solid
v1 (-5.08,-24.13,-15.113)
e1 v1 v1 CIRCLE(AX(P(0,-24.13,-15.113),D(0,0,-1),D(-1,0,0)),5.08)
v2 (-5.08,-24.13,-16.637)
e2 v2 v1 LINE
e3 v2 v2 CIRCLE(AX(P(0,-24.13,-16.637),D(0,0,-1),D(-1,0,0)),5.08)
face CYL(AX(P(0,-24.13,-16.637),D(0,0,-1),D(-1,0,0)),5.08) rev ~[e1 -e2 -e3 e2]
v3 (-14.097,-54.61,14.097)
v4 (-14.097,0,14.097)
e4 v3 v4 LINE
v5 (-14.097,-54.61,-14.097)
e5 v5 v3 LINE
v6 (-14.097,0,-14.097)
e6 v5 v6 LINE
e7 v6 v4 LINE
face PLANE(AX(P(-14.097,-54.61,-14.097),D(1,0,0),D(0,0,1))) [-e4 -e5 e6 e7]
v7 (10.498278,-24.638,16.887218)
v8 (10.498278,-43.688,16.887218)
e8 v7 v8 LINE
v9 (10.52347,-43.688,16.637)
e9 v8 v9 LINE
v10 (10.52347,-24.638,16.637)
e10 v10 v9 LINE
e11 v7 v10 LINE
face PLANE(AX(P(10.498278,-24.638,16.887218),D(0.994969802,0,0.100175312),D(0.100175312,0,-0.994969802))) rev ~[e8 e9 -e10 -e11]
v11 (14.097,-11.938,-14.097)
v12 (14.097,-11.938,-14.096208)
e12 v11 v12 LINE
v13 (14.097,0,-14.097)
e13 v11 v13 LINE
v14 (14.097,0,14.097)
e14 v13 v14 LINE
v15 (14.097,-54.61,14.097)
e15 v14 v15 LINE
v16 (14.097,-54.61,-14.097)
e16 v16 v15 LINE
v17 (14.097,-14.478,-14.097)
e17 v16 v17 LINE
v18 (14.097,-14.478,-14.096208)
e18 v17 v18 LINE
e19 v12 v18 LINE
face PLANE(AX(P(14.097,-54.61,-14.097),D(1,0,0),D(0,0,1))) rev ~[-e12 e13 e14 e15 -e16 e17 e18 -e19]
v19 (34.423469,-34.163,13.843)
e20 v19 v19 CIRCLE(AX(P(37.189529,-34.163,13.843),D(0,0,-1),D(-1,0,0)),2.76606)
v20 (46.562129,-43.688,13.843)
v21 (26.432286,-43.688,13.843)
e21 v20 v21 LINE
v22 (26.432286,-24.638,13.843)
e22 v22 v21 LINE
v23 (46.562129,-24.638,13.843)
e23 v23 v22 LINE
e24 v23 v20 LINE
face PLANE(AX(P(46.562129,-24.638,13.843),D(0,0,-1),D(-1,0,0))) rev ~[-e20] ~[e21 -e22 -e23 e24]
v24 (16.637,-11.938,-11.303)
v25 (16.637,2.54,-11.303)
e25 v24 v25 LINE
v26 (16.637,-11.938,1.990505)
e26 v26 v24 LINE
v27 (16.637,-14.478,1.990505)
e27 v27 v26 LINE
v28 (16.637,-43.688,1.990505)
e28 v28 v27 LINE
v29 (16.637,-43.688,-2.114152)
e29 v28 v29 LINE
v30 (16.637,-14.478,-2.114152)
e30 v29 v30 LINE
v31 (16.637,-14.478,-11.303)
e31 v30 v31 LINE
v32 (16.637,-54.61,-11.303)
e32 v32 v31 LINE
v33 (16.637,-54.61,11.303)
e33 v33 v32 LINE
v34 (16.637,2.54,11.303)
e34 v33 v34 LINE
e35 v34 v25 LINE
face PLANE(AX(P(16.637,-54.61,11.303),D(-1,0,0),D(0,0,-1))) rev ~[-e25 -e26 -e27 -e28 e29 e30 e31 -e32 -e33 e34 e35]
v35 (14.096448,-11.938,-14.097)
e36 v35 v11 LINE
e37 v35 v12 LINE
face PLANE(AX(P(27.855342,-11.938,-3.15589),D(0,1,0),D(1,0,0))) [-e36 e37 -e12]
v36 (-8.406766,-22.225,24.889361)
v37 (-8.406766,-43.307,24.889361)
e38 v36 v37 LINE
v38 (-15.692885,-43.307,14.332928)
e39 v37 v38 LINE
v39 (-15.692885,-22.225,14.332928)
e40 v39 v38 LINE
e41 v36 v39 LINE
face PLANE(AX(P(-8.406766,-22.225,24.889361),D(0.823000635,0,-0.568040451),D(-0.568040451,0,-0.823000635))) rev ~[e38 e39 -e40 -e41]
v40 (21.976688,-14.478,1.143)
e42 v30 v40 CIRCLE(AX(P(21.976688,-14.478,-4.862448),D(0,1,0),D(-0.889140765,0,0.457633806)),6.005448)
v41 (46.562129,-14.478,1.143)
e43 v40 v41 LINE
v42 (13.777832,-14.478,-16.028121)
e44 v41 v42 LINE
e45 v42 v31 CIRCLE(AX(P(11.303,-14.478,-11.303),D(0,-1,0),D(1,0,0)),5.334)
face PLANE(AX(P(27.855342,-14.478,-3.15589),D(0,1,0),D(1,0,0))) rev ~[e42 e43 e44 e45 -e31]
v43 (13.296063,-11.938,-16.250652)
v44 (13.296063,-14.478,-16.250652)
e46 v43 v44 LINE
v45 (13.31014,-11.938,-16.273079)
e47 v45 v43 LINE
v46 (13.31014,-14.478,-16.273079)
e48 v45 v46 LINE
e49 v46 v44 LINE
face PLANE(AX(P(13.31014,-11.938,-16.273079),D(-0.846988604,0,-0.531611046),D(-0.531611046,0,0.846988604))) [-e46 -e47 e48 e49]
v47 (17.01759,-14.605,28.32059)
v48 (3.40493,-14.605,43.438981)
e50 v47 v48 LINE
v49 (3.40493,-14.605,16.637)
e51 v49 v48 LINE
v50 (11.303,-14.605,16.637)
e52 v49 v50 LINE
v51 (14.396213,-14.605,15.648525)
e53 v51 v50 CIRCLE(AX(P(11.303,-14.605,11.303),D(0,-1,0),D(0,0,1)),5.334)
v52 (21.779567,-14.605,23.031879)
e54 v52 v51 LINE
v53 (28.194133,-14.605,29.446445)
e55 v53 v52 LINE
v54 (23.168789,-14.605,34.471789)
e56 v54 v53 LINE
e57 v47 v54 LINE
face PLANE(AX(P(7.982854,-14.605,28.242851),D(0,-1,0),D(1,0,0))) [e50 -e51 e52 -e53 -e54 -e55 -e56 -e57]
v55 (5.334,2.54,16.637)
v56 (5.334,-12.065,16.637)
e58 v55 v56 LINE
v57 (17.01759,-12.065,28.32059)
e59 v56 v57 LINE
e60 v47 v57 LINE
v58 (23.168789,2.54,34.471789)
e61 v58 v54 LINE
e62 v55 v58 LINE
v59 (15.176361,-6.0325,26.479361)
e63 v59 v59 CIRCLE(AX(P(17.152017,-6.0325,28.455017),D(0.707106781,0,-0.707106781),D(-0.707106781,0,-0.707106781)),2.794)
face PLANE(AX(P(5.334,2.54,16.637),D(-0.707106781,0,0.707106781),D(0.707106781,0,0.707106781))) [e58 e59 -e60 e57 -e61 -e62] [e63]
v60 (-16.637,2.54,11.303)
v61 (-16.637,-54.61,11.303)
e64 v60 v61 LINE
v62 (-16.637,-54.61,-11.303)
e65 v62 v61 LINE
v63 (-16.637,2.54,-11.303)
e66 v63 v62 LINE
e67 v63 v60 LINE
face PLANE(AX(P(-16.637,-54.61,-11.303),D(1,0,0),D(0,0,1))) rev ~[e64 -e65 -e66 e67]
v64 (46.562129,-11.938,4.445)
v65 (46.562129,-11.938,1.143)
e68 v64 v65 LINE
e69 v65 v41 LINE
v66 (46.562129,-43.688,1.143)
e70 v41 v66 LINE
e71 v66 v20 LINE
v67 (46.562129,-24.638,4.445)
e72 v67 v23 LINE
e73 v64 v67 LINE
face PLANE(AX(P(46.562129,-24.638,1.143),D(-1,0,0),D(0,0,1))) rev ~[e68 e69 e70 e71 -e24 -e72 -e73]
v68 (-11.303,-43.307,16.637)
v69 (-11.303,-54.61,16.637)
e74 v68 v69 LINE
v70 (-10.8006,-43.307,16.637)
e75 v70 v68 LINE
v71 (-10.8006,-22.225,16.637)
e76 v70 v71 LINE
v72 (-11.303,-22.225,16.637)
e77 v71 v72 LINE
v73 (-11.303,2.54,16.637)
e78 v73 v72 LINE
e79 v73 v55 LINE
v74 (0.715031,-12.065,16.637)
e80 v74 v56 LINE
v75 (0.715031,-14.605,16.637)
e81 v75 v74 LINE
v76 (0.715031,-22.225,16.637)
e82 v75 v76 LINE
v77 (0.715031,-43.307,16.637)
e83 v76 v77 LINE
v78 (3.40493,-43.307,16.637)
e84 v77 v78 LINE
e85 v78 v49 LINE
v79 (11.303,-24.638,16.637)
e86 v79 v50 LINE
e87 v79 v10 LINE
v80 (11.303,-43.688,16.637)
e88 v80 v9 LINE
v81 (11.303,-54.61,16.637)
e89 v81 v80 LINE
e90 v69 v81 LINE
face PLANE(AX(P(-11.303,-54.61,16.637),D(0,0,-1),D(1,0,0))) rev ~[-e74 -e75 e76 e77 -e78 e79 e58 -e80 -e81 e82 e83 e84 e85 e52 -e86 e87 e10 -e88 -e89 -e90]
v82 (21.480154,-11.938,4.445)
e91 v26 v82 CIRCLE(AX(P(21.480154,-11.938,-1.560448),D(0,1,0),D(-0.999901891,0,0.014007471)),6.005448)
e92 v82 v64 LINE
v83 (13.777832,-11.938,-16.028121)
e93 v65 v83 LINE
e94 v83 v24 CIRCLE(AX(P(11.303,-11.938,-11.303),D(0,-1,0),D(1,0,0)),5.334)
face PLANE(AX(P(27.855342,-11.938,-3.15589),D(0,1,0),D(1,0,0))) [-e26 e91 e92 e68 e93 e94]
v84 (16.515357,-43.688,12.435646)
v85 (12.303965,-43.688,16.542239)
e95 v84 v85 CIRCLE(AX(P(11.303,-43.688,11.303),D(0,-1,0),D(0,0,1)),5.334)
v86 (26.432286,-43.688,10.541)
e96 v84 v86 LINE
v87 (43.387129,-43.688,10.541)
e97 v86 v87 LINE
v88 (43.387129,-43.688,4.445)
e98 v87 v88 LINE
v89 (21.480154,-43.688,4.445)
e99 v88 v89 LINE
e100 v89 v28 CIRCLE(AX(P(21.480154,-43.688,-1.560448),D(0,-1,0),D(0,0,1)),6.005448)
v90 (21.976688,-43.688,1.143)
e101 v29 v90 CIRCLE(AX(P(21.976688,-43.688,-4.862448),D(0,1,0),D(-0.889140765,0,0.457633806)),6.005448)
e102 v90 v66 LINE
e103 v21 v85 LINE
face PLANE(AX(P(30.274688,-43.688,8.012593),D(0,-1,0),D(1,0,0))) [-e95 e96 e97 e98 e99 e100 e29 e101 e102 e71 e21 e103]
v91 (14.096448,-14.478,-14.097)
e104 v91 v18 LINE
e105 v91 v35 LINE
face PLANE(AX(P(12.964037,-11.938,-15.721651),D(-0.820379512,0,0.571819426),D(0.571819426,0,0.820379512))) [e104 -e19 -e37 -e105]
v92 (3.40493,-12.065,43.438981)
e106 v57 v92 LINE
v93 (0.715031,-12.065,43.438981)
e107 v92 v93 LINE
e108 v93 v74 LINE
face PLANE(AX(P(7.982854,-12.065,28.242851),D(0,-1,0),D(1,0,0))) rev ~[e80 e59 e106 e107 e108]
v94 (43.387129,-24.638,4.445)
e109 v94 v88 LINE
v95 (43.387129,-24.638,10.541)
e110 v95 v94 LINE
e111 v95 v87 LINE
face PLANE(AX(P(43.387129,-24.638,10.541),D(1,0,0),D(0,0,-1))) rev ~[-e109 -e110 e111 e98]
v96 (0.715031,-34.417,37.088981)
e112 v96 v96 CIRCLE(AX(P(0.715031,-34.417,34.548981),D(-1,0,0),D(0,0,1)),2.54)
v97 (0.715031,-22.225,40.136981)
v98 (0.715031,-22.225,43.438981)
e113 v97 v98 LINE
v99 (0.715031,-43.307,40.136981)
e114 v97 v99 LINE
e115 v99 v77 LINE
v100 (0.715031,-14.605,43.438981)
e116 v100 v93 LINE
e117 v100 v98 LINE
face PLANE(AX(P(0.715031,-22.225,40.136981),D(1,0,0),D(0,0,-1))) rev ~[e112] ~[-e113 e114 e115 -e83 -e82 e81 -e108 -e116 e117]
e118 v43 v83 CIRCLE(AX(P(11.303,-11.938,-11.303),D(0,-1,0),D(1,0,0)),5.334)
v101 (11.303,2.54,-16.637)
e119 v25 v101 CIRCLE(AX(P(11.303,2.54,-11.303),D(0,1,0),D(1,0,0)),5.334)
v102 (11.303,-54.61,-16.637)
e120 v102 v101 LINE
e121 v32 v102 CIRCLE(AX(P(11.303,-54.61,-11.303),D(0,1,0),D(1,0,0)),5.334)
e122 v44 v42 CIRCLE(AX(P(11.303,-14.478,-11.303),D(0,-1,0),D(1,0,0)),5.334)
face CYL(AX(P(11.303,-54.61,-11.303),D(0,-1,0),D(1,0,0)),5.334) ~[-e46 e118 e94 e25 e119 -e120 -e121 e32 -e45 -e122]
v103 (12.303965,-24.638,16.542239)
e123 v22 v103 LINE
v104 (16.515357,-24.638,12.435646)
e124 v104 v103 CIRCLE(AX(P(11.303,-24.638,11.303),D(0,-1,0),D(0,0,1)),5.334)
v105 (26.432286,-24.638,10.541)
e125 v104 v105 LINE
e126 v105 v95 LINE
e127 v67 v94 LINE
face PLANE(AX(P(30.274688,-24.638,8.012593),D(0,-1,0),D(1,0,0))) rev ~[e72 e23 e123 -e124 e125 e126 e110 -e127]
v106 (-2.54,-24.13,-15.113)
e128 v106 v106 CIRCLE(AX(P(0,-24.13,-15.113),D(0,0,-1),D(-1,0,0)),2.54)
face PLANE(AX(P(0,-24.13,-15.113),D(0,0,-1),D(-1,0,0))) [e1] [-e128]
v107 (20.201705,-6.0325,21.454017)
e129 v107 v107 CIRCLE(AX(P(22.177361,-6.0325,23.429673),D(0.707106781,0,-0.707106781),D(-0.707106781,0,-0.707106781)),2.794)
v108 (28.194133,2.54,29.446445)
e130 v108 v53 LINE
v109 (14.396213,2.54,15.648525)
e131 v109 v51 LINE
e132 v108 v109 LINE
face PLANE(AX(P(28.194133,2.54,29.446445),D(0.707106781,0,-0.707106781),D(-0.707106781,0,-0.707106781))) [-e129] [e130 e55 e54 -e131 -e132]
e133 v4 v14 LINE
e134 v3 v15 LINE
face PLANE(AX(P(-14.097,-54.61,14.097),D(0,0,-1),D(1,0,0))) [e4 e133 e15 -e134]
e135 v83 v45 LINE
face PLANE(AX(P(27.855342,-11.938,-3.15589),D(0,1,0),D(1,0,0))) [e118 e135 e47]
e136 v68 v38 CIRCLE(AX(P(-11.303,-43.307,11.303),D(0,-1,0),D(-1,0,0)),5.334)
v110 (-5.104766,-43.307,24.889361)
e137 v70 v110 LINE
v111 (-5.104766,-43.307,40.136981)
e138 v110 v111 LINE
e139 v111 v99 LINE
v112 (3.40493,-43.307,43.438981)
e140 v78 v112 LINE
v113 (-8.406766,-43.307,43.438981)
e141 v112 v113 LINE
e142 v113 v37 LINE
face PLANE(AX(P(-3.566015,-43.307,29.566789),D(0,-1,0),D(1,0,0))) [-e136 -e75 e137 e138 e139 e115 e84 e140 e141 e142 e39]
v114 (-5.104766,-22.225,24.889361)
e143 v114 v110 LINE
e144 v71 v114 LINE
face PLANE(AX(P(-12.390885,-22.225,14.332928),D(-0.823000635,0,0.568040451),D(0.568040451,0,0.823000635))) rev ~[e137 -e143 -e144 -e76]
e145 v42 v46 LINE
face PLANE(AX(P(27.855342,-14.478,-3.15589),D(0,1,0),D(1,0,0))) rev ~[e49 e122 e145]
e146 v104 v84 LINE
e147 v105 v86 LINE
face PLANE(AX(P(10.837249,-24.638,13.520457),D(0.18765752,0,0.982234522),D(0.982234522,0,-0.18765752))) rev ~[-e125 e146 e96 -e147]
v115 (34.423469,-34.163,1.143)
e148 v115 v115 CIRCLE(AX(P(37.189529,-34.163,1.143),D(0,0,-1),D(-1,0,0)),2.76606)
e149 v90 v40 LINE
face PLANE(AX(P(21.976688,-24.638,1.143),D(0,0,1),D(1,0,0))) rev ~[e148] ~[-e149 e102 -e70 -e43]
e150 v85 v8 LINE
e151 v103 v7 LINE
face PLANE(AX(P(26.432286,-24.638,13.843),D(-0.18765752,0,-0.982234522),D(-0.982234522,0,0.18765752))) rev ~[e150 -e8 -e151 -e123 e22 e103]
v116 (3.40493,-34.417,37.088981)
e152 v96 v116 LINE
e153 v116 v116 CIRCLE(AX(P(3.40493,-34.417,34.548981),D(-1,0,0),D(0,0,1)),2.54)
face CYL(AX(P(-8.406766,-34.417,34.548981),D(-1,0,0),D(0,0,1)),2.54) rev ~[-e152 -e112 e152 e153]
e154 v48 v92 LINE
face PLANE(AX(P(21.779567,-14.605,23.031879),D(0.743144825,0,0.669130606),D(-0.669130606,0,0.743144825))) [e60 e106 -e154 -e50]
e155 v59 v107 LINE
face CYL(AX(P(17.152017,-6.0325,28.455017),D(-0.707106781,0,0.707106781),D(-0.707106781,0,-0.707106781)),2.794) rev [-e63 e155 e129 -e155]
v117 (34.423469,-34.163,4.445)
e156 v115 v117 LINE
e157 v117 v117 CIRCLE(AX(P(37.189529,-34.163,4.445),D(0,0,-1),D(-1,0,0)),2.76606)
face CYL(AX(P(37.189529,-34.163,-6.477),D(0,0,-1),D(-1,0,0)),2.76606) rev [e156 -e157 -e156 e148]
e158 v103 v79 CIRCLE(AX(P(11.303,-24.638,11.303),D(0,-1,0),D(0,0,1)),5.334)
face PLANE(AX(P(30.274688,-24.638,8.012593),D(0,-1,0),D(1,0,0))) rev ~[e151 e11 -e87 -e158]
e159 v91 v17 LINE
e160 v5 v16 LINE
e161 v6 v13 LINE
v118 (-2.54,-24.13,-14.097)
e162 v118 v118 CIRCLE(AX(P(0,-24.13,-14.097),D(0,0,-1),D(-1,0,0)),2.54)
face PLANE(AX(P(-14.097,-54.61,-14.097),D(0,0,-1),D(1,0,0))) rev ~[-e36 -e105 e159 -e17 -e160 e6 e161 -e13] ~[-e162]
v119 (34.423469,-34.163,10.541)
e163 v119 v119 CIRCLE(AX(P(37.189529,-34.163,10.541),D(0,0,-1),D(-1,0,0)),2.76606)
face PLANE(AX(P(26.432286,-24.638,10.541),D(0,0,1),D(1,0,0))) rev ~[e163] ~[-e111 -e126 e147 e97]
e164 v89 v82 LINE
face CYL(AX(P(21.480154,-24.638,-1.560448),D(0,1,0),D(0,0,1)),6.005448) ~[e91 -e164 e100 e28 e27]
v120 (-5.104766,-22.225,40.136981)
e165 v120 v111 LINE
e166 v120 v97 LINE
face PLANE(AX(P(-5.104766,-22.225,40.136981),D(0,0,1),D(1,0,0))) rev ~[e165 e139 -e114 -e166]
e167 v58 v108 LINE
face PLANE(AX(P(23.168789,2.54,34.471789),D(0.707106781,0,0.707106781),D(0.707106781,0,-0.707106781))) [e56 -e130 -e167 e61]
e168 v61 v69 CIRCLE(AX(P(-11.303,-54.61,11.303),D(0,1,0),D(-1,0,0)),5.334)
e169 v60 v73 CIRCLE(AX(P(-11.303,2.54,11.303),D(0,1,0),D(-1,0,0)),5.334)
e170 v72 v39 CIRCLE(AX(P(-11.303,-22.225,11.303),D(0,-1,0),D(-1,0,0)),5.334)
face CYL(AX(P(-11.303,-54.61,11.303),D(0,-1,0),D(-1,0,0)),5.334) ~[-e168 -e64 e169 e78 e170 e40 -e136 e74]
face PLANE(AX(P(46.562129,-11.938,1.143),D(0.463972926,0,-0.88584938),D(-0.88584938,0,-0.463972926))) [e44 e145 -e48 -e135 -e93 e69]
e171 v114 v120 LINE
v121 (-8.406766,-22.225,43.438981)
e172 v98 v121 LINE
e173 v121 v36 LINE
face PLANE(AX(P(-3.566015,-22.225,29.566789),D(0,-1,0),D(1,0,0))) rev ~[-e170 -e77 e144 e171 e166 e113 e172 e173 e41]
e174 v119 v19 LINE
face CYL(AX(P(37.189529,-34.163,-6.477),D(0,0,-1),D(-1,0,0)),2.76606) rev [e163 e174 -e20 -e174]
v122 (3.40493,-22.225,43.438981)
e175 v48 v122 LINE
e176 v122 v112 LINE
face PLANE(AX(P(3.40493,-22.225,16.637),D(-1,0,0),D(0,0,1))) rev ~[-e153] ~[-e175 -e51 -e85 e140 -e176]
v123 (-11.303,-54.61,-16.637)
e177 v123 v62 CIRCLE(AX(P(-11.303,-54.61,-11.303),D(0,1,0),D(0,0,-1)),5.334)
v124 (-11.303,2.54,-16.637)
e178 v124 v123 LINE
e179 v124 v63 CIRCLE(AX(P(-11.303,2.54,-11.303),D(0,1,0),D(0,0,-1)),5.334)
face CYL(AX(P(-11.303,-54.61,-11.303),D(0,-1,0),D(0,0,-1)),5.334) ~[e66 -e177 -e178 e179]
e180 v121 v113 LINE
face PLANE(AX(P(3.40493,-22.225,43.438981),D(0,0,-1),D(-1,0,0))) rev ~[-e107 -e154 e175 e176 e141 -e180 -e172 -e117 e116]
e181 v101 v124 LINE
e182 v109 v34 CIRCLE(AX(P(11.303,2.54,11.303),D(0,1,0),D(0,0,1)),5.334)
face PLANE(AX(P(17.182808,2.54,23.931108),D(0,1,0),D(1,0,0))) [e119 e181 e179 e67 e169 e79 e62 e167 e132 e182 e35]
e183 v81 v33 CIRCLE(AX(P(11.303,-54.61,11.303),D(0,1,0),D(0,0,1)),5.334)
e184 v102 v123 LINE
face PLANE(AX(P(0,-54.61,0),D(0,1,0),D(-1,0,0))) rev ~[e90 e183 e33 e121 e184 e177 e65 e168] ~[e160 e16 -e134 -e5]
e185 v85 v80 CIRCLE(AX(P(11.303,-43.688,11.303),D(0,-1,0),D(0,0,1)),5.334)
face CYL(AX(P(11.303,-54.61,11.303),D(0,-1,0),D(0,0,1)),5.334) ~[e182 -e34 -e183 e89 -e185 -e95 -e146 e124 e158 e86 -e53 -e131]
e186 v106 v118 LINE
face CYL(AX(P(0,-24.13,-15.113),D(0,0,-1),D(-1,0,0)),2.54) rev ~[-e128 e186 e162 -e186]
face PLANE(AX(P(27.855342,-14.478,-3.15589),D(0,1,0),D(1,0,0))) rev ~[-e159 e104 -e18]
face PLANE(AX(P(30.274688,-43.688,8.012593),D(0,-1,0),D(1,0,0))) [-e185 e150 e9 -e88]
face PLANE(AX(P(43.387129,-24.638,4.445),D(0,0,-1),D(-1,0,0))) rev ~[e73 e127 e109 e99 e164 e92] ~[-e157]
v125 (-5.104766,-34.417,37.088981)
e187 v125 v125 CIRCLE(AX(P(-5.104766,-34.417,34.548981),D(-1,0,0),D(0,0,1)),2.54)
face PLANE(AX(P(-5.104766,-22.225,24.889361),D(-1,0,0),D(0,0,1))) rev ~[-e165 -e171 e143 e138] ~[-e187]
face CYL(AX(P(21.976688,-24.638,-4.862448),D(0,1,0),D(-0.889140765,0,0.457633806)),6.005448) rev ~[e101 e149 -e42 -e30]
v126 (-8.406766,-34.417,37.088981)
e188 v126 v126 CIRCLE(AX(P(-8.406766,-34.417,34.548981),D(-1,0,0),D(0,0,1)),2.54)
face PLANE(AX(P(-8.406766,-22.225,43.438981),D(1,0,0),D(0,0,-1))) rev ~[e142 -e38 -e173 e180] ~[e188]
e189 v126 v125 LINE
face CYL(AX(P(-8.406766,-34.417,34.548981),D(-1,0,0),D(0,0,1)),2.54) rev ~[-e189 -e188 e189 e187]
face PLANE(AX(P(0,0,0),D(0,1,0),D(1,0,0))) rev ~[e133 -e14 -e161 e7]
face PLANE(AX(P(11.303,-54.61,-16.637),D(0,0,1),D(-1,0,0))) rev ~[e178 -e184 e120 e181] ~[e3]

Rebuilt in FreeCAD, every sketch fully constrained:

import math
import FreeCAD as App
import Part
import Sketcher

V = App.Vector
Q = App.Units.Quantity


def add_polygon(sketch, points):
    """Adds a closed chain of lines whose ends are joined by coincident constraints."""
    first, n = sketch.GeometryCount, len(points)
    for a, b in zip(points, points[1:] + points[:1]):
        sketch.addGeometry(Part.LineSegment(App.Vector(*a, 0), App.Vector(*b, 0)), False)
    for i in range(n):
        sketch.addConstraint(Sketcher.Constraint("Coincident", first + i, 2, first + (i + 1) % n, 1))

doc = App.newDocument("Part")
body = doc.addObject("PartDesign::Body", "Body")

sketch1 = body.newObject("Sketcher::SketchObject", "Sketch")
sketch1.AttachmentSupport = (doc.getObject("XZ_Plane"), [""])
sketch1.MapMode = "FlatFace"
sketch1.addGeometry([
    Part.LineSegment(V(-11, 17, 0), V(11, 17, 0)),
    Part.ArcOfCircle(Part.Circle(V(11, 11, 0), V(0, 0, 1), 5), math.radians(0), math.radians(90)),
    Part.LineSegment(V(17, 11, 0), V(17, -11, 0)),
    Part.ArcOfCircle(Part.Circle(V(11, -11, 0), V(0, 0, 1), 5), math.radians(-90), math.radians(0)),
    Part.LineSegment(V(11, -17, 0), V(-11, -17, 0)),
    Part.ArcOfCircle(Part.Circle(V(-11, -11, 0), V(0, 0, 1), 5), math.radians(180), math.radians(270)),
    Part.LineSegment(V(-17, -11, 0), V(-17, 11, 0)),
    Part.ArcOfCircle(Part.Circle(V(-11, 11, 0), V(0, 0, 1), 5), math.radians(90), math.radians(180)),
], False)
sketch1.addConstraint([
    Sketcher.Constraint("Tangent", 0, 2, 1, 2),
    Sketcher.Constraint("Tangent", 1, 1, 2, 1),
    Sketcher.Constraint("Tangent", 2, 2, 3, 2),
    Sketcher.Constraint("Tangent", 3, 1, 4, 1),
    Sketcher.Constraint("Tangent", 4, 2, 5, 2),
    Sketcher.Constraint("Tangent", 5, 1, 6, 1),
    Sketcher.Constraint("Tangent", 6, 2, 7, 2),
    Sketcher.Constraint("Tangent", 7, 1, 0, 1),
    Sketcher.Constraint("Horizontal", 0),
    Sketcher.Constraint("Vertical", 2),
    Sketcher.Constraint("Horizontal", 4),
    Sketcher.Constraint("Vertical", 6),
    Sketcher.Constraint("Equal", 1, 3),
    Sketcher.Constraint("Equal", 3, 5),
    Sketcher.Constraint("Equal", 5, 7),
    Sketcher.Constraint("Symmetric", 1, 3, 5, 3, -1, 1),
    Sketcher.Constraint("Equal", 4, 2),
    Sketcher.Constraint("Radius", 1, Q("0.21 in")),
    Sketcher.Constraint("DistanceX", 0, 1, 0, 2, Q("0.89 in")),
])
pad1 = body.newObject("PartDesign::Pad", "Pad")
pad1.Profile = sketch1
pad1.Length = Q("0.1 in")
pad1.Reversed = True

sketch2 = body.newObject("Sketcher::SketchObject", "Sketch001")
sketch2.AttachmentSupport = (doc.getObject("XZ_Plane"), [""])
sketch2.MapMode = "FlatFace"
sketch2.AttachmentOffset = App.Placement(V(0, 0, 2.15 * 25.4), App.Rotation())
sketch2.addGeometry(Part.LineSegment(V(11, 17, 0), V(-11, 17, 0)), False)
sketch2.addGeometry(Part.ArcOfCircle(Part.Circle(V(-11, 11, 0), V(0, 0, 1), 5), math.radians(90), math.radians(180)), False)
sketch2.addGeometry(Part.LineSegment(V(-17, 11, 0), V(-17, -11, 0)), False)
sketch2.addGeometry(Part.ArcOfCircle(Part.Circle(V(-11, -11, 0), V(0, 0, 1), 5), math.radians(180), math.radians(270)), False)
sketch2.addGeometry(Part.LineSegment(V(-11, -17, 0), V(11, -17, 0)), False)
sketch2.addGeometry(Part.ArcOfCircle(Part.Circle(V(11, -11, 0), V(0, 0, 1), 5), math.radians(-90), math.radians(0)), False)
sketch2.addGeometry(Part.LineSegment(V(17, -11, 0), V(17, 11, 0)), False)
sketch2.addGeometry(Part.ArcOfCircle(Part.Circle(V(11, 11, 0), V(0, 0, 1), 5), math.radians(0), math.radians(90)), False)
add_polygon(sketch2, [(-14, -14), (-14, 14), (14, 14), (14, -14)])
sketch2.addConstraint([
    Sketcher.Constraint("Tangent", 0, 2, 1, 1),
    Sketcher.Constraint("Tangent", 1, 2, 2, 1),
    Sketcher.Constraint("Tangent", 2, 2, 3, 1),
    Sketcher.Constraint("Tangent", 3, 2, 4, 1),
    Sketcher.Constraint("Tangent", 4, 2, 5, 1),
    Sketcher.Constraint("Tangent", 5, 2, 6, 1),
    Sketcher.Constraint("Tangent", 6, 2, 7, 1),
    Sketcher.Constraint("Tangent", 7, 2, 0, 1),
    Sketcher.Constraint("Horizontal", 0),
    Sketcher.Constraint("Vertical", 2),
    Sketcher.Constraint("Horizontal", 4),
    Sketcher.Constraint("Vertical", 6),
    Sketcher.Constraint("Vertical", 8),
    Sketcher.Constraint("Horizontal", 9),
    Sketcher.Constraint("Vertical", 10),
    Sketcher.Constraint("Horizontal", 11),
    Sketcher.Constraint("Equal", 1, 3),
    Sketcher.Constraint("Equal", 3, 5),
    Sketcher.Constraint("Equal", 5, 7),
    Sketcher.Constraint("Symmetric", 1, 3, 5, 3, -1, 1),
    Sketcher.Constraint("Symmetric", 8, 2, 10, 2, -1, 1),
    Sketcher.Constraint("Equal", 4, 2),
    Sketcher.Constraint("Equal", 11, 8),
    Sketcher.Constraint("Radius", 1, Q("0.21 in")),
    Sketcher.Constraint("DistanceY", 2, 2, 8, 2, Q("1 in")),
    Sketcher.Constraint("DistanceX", 0, 2, 0, 1, Q("0.89 in")),
])
pad2 = body.newObject("PartDesign::Pad", "Pad001")
pad2.Profile = sketch2
pad2.Length = Q("2.15 in")
pad2.Reversed = True

sketch3 = body.newObject("Sketcher::SketchObject", "Sketch002")
sketch3.AttachmentSupport = (doc.getObject("XY_Plane"), [""])
sketch3.MapMode = "FlatFace"
sketch3.AttachmentOffset = App.Placement(V(0, 0, -0.655 * 25.4), App.Rotation())
sketch3.addGeometry(Part.Circle(V(0, -24, 0), V(0, 0, 1), 5), False)
sketch3.addConstraint([
    Sketcher.Constraint("PointOnObject", 0, 3, -2),
    Sketcher.Constraint("Diameter", 0, Q("0.4 in")),
    Sketcher.Constraint("DistanceY", 0, 3, -1, 1, Q("0.95 in")),
])
pocket1 = body.newObject("PartDesign::Pocket", "Pocket")
pocket1.Profile = sketch3
pocket1.Length = Q("0.06 in")
pocket1.Reversed = True

sketch4 = body.newObject("Sketcher::SketchObject", "Sketch003")
sketch4.AttachmentSupport = (doc.getObject("XY_Plane"), [""])
sketch4.MapMode = "FlatFace"
sketch4.AttachmentOffset = App.Placement(V(0, 0, -0.595 * 25.4), App.Rotation())
sketch4.addGeometry(Part.Circle(V(0, -24.1, 0), V(0, 0, 1), 2.5), False)
sketch4.addConstraint([
    Sketcher.Constraint("PointOnObject", 0, 3, -2),
    Sketcher.Constraint("Diameter", 0, Q("0.2 in")),
    Sketcher.Constraint("DistanceY", 0, 3, -1, 1, Q("0.95 in")),
])
pocket2 = body.newObject("PartDesign::Pocket", "Pocket001")
pocket2.Profile = sketch4
pocket2.Length = Q("0.04 in")
pocket2.Reversed = True

sketch5 = body.newObject("Sketcher::SketchObject", "Sketch004")
sketch5.AttachmentSupport = (doc.getObject("XZ_Plane"), [""])
sketch5.MapMode = "FlatFace"
sketch5.AttachmentOffset = App.Placement(V(0, 0, -0.1 * 25.4), App.Rotation())
add_polygon(sketch5, [(5, 17), (23, 34), (28, 29), (14, 16)])
sketch5.addConstraint([
    Sketcher.Constraint("Perpendicular", 0, 1),
    Sketcher.Constraint("Perpendicular", 1, 2),
    Sketcher.Constraint("Angle", 0, Q("45 deg")),
    Sketcher.Constraint("DistanceX", -1, 1, 3, 2, Q("0.21 in")),
    Sketcher.Constraint("Distance", 0, Q("0.993 in")),
    Sketcher.Constraint("DistanceY", -1, 1, 3, 2, Q("0.655 in")),
    Sketcher.Constraint("Distance", 1, Q("7.106909 mm")),
    Sketcher.Constraint("DistanceX", 2, 2, 1, 2, Q("13.79792 mm")),
])
pad3 = body.newObject("PartDesign::Pad", "Pad002")
pad3.Profile = sketch5
pad3.Length = Q("0.675 in")

sketch6 = body.newObject("Sketcher::SketchObject", "Sketch005")
sketch6.Placement = App.Placement(V(-5.6515, 0, 5.6515), App.Rotation(V(-0.707106781, 0, -0.707106781), V(0, 0.999999999, 0), V(0.707106781, 0, -0.707106781), "ZXY"))
sketch6.addGeometry(Part.Circle(V(-32.2, -6, 0), V(0, 0, 1), 2.8), False)
sketch6.addConstraint([
    Sketcher.Constraint("Diameter", 0, Q("0.22 in")),
    Sketcher.Constraint("DistanceY", 0, 3, -1, 1, Q("0.2375 in")),
    Sketcher.Constraint("DistanceX", 0, 3, -1, 1, Q("32.249043 mm")),
])
pocket3 = body.newObject("PartDesign::Pocket", "Pocket002")
pocket3.Profile = sketch6
pocket3.Length = 7.10691
pocket3.Reversed = True

sketch7 = body.newObject("Sketcher::SketchObject", "Sketch006")
sketch7.AttachmentSupport = (doc.getObject("XZ_Plane"), [""])
sketch7.MapMode = "FlatFace"
sketch7.AttachmentOffset = App.Placement(V(0, 0, 0.47 * 25.4), App.Rotation())
sketch7.addGeometry([
    Part.LineSegment(V(46.6, 1.1, 0), V(13.3, -16.3, 0)),
    Part.LineSegment(V(13.3, -16.3, 0), V(13, -15.7, 0)),
    Part.LineSegment(V(13, -15.7, 0), V(15.5, -12.1, 0)),
    Part.LineSegment(V(15.5, -12.1, 0), V(15.5, -1.5, 0)),
    Part.ArcOfCircle(Part.Circle(V(21.5, -1.6, 0), V(0, 0, 1), 6), math.radians(90), math.radians(179)),
    Part.LineSegment(V(21.5, 4.4, 0), V(46.6, 4.4, 0)),
    Part.LineSegment(V(46.6, 4.4, 0), V(46.6, 1.1, 0)),
], False)
sketch7.addConstraint([
    Sketcher.Constraint("Coincident", 0, 2, 1, 1),
    Sketcher.Constraint("Coincident", 1, 2, 2, 1),
    Sketcher.Constraint("Coincident", 2, 2, 3, 1),
    Sketcher.Constraint("Coincident", 3, 2, 4, 2),
    Sketcher.Constraint("Tangent", 4, 1, 5, 1),
    Sketcher.Constraint("Coincident", 5, 2, 6, 1),
    Sketcher.Constraint("Coincident", 6, 2, 0, 1),
    Sketcher.Constraint("Vertical", 3),
    Sketcher.Constraint("Horizontal", 5),
    Sketcher.Constraint("Vertical", 6),
    Sketcher.Constraint("DistanceY", 6, 2, 6, 1, Q("0.13 in")),
    Sketcher.Constraint("DistanceY", -1, 1, 4, 1, Q("0.175 in")),
    Sketcher.Constraint("Radius", 4, Q("6.005448 mm")),
    Sketcher.Constraint("Distance", 2, Q("4.391699 mm")),
    Sketcher.Constraint("DistanceX", 5, 1, 5, 2, Q("25.081975 mm")),
    Sketcher.Constraint("DistanceY", 3, 1, 3, 2, Q("10.642465 mm")),
    Sketcher.Constraint("DistanceX", -1, 1, 0, 2, Q("13.31014 mm")),
    Sketcher.Constraint("DistanceY", 0, 2, -1, 1, Q("16.273079 mm")),
    Sketcher.Constraint("DistanceY", 1, 2, -1, 1, Q("15.721651 mm")),
    Sketcher.Constraint("DistanceY", 2, 2, -1, 1, Q("12.118791 mm")),
    Sketcher.Constraint("DistanceX", -1, 1, 5, 2, Q("46.562129 mm")),
])
pad4 = body.newObject("PartDesign::Pad", "Pad003")
pad4.Profile = sketch7
pad4.Length = Q("0.1 in")

sketch8 = body.newObject("Sketcher::SketchObject", "Sketch007")
sketch8.AttachmentSupport = (doc.getObject("XZ_Plane"), [""])
sketch8.MapMode = "FlatFace"
sketch8.AttachmentOffset = App.Placement(V(0, 0, 0.57 * 25.4), App.Rotation())
sketch8.addGeometry([
    Part.LineSegment(V(46.6, 1.1, 0), V(46.6, 4.4, 0)),
    Part.LineSegment(V(46.6, 4.4, 0), V(21.5, 4.4, 0)),
    Part.ArcOfCircle(Part.Circle(V(21.5, -1.6, 0), V(0, 0, 1), 6), math.radians(90), math.radians(144)),
    Part.LineSegment(V(16.6, 2, 0), V(16.6, -2.1, 0)),
    Part.ArcOfCircle(Part.Circle(V(22, -4.9, 0), V(0, 0, 1), 6), math.radians(90), math.radians(153)),
    Part.LineSegment(V(22, 1.1, 0), V(46.6, 1.1, 0)),
], False)
sketch8.addConstraint([
    Sketcher.Constraint("Coincident", 0, 2, 1, 1),
    Sketcher.Constraint("Tangent", 1, 2, 2, 1),
    Sketcher.Constraint("Coincident", 2, 2, 3, 1),
    Sketcher.Constraint("Coincident", 3, 2, 4, 2),
    Sketcher.Constraint("Tangent", 4, 1, 5, 1),
    Sketcher.Constraint("Coincident", 5, 2, 0, 1),
    Sketcher.Constraint("Vertical", 0),
    Sketcher.Constraint("Horizontal", 1),
    Sketcher.Constraint("Vertical", 3),
    Sketcher.Constraint("Horizontal", 5),
    Sketcher.Constraint("Equal", 2, 4),
    Sketcher.Constraint("DistanceY", 0, 1, 0, 2, Q("0.13 in")),
    Sketcher.Constraint("DistanceY", -1, 1, 0, 2, Q("0.175 in")),
    Sketcher.Constraint("DistanceX", -1, 1, 2, 2, Q("0.655 in")),
    Sketcher.Constraint("Radius", 2, Q("6.005448 mm")),
    Sketcher.Constraint("DistanceX", 5, 1, 5, 2, Q("24.585441 mm")),
    Sketcher.Constraint("DistanceX", 1, 2, 1, 1, Q("25.081975 mm")),
    Sketcher.Constraint("DistanceY", 3, 2, 3, 1, Q("4.104656 mm")),
])
pad5 = body.newObject("PartDesign::Pad", "Pad004")
pad5.Profile = sketch8
pad5.Length = Q("0.4 in")

sketch9 = body.newObject("Sketcher::SketchObject", "Sketch008")
sketch9.AttachmentSupport = (doc.getObject("XZ_Plane"), [""])
sketch9.MapMode = "FlatFace"
sketch9.AttachmentOffset = App.Placement(V(0, 0, 0.97 * 25.4), App.Rotation())
sketch9.addGeometry([
    Part.LineSegment(V(21.976688, 1.143, 0), V(46.562129, 1.143, 0)),
    Part.LineSegment(V(46.562129, 1.143, 0), V(46.562129, 13.843, 0)),
    Part.LineSegment(V(46.562129, 13.843, 0), V(26.432286, 13.843, 0)),
    Part.LineSegment(V(26.432286, 13.843, 0), V(10.498278, 16.887218, 0)),
    Part.LineSegment(V(10.498278, 16.887218, 0), V(10.837249, 13.520457, 0)),
    Part.LineSegment(V(10.837249, 13.520457, 0), V(26.432286, 10.541, 0)),
    Part.LineSegment(V(26.432286, 10.541, 0), V(43.387129, 10.541, 0)),
    Part.LineSegment(V(43.387129, 10.541, 0), V(43.387129, 4.445, 0)),
    Part.LineSegment(V(43.387129, 4.445, 0), V(21.480154, 4.445, 0)),
    Part.ArcOfCircle(Part.Circle(V(21.480154, -1.560448, 0), V(0, 0, 1), 6.005448), math.radians(90), math.radians(143.751501)),
    Part.LineSegment(V(16.637, 1.990505, 0), V(16.637, -2.114152, 0)),
    Part.ArcOfCircle(Part.Circle(V(21.976688, -4.862448, 0), V(0, 0, 1), 6.005448), math.radians(90), math.radians(152.765474)),
], False)
sketch9.addConstraint([
    Sketcher.Constraint("Coincident", 0, 2, 1, 1),
    Sketcher.Constraint("Coincident", 1, 2, 2, 1),
    Sketcher.Constraint("Coincident", 2, 2, 3, 1),
    Sketcher.Constraint("Coincident", 3, 2, 4, 1),
    Sketcher.Constraint("Coincident", 4, 2, 5, 1),
    Sketcher.Constraint("Coincident", 5, 2, 6, 1),
    Sketcher.Constraint("Coincident", 6, 2, 7, 1),
    Sketcher.Constraint("Coincident", 7, 2, 8, 1),
    Sketcher.Constraint("Coincident", 8, 2, 9, 1),
    Sketcher.Constraint("Coincident", 9, 2, 10, 1),
    Sketcher.Constraint("Coincident", 10, 2, 11, 2),
    Sketcher.Constraint("Coincident", 11, 1, 0, 1),
    Sketcher.Constraint("Horizontal", 0),
    Sketcher.Constraint("Vertical", 1),
    Sketcher.Constraint("Horizontal", 2),
    Sketcher.Constraint("Horizontal", 6),
    Sketcher.Constraint("Vertical", 7),
    Sketcher.Constraint("Horizontal", 8),
    Sketcher.Constraint("Vertical", 10),
    Sketcher.Constraint("DistanceY", 1, 1, 1, 2, Q("0.5 in")),
    Sketcher.Constraint("DistanceY", 7, 2, 7, 1, Q("0.24 in")),
    Sketcher.Constraint("DistanceY", 11, 3, 9, 3, Q("0.13 in")),
    Sketcher.Constraint("DistanceY", 5, 2, 2, 2, Q("0.13 in")),
    Sketcher.Constraint("DistanceY", -1, 1, 0, 2, Q("0.045 in")),
    Sketcher.Constraint("DistanceX", -1, 1, 9, 2, Q("0.655 in")),
    Sketcher.Constraint("DistanceX", 6, 2, 1, 2, Q("0.125 in")),
    Sketcher.Constraint("Radius", 9, Q("6.005448 mm")),
    Sketcher.Constraint("Distance", 5, Q("15.877101 mm")),
    Sketcher.Constraint("DistanceX", 0, 1, 0, 2, Q("24.585441 mm")),
    Sketcher.Constraint("DistanceX", 2, 2, 2, 1, Q("20.129843 mm")),
    Sketcher.Constraint("DistanceX", 6, 1, 6, 2, Q("16.954843 mm")),
    Sketcher.Constraint("DistanceX", 8, 2, 8, 1, Q("21.906975 mm")),
    Sketcher.Constraint("DistanceY", 10, 2, 10, 1, Q("4.104656 mm")),
    Sketcher.Constraint("DistanceX", -1, 1, 11, 3, Q("21.976688 mm")),
    Sketcher.Constraint("DistanceX", -1, 1, 0, 2, Q("46.562129 mm")),
    Sketcher.Constraint("DistanceY", -1, 1, 3, 2, Q("16.887218 mm")),
    Sketcher.Constraint("DistanceX", -1, 1, 4, 2, Q("10.837249 mm")),
    Sketcher.Constraint("DistanceX", 3, 2, 2, 2, Q("15.934008 mm")),
])
pad6 = body.newObject("PartDesign::Pad", "Pad005")
pad6.Profile = sketch9
pad6.Length = Q("0.75 in")

sketch10 = body.newObject("Sketcher::SketchObject", "Sketch009")
sketch10.AttachmentSupport = (doc.getObject("XY_Plane"), [""])
sketch10.MapMode = "FlatFace"
sketch10.AttachmentOffset = App.Placement(V(0, 0, 0.545 * 25.4), App.Rotation())
sketch10.addGeometry(Part.Circle(V(37.2, -34.2, 0), V(0, 0, 1), 2.8), False)
sketch10.addConstraint([
    Sketcher.Constraint("Diameter", 0, Q("0.2178 in")),
    Sketcher.Constraint("DistanceY", 0, 3, -1, 1, Q("1.345 in")),
    Sketcher.Constraint("DistanceX", -1, 1, 0, 3, Q("37.189529 mm")),
])
pocket4 = body.newObject("PartDesign::Pocket", "Pocket003")
pocket4.Profile = sketch10
pocket4.Type = "ThroughAll"
pocket4.Midplane = True

sketch11 = body.newObject("Sketcher::SketchObject", "Sketch010")
sketch11.AttachmentSupport = (doc.getObject("XZ_Plane"), [""])
sketch11.MapMode = "FlatFace"
sketch11.AttachmentOffset = App.Placement(V(0, 0, 0.575 * 25.4), App.Rotation())
add_polygon(sketch11, [(3.4, 43.4), (0.7, 43.4), (0.7, 16.6), (11.3, 16.6), (21.8, 23)])
sketch11.addConstraint([
    Sketcher.Constraint("Horizontal", 0),
    Sketcher.Constraint("Vertical", 1),
    Sketcher.Constraint("Horizontal", 2),
    Sketcher.Constraint("Angle", 4, Q("132 deg")),
    Sketcher.Constraint("DistanceY", -1, 1, 1, 2, Q("0.655 in")),
    Sketcher.Constraint("DistanceX", -1, 1, 2, 2, Q("0.445 in")),
    Sketcher.Constraint("DistanceX", 0, 2, 0, 1, Q("2.689899 mm")),
    Sketcher.Constraint("DistanceX", 2, 1, 2, 2, Q("10.587969 mm")),
    Sketcher.Constraint("DistanceY", 1, 2, 1, 1, Q("26.801981 mm")),
    Sketcher.Constraint("DistanceY", 3, 2, 0, 2, Q("20.407102 mm")),
])
pad7 = body.newObject("PartDesign::Pad", "Pad006")
pad7.Profile = sketch11
pad7.Length = Q("0.1 in")
pad7.Reversed = True

sketch12 = body.newObject("Sketcher::SketchObject", "Sketch011")
sketch12.AttachmentSupport = (doc.getObject("XZ_Plane"), [""])
sketch12.MapMode = "FlatFace"
sketch12.AttachmentOffset = App.Placement(V(0, 0, 0.575 * 25.4), App.Rotation())
add_polygon(sketch12, [(0.7, 43.4), (0.7, 16.6), (3.4, 16.6), (3.4, 43.4)])
sketch12.addConstraint([
    Sketcher.Constraint("Vertical", 0),
    Sketcher.Constraint("Horizontal", 1),
    Sketcher.Constraint("Vertical", 2),
    Sketcher.Constraint("Horizontal", 3),
    Sketcher.Constraint("DistanceY", -1, 1, 0, 2, Q("0.655 in")),
    Sketcher.Constraint("DistanceX", 1, 1, 1, 2, Q("2.689899 mm")),
    Sketcher.Constraint("DistanceY", 0, 2, 0, 1, Q("26.801981 mm")),
    Sketcher.Constraint("DistanceX", -1, 1, 0, 2, Q("0.715031 mm")),
])
pad8 = body.newObject("PartDesign::Pad", "Pad007")
pad8.Profile = sketch12
pad8.Length = Q("0.3 in")

sketch13 = body.newObject("Sketcher::SketchObject", "Sketch012")
sketch13.AttachmentSupport = (doc.getObject("XZ_Plane"), [""])
sketch13.MapMode = "FlatFace"
sketch13.AttachmentOffset = App.Placement(V(0, 0, 0.875 * 25.4), App.Rotation())
add_polygon(sketch13, [(3.4, 16.6), (3.4, 43.4), (-8.4, 43.4), (-8.4, 24.9), (-15.7, 14.3), (-12.4, 14.3), (-5.1, 24.9), (-5.1, 40.1), (0.7, 40.1), (0.7, 16.6)])
sketch13.addConstraint([
    Sketcher.Constraint("Vertical", 0),
    Sketcher.Constraint("Horizontal", 1),
    Sketcher.Constraint("Vertical", 2),
    Sketcher.Constraint("Horizontal", 4),
    Sketcher.Constraint("Vertical", 6),
    Sketcher.Constraint("Horizontal", 7),
    Sketcher.Constraint("Vertical", 8),
    Sketcher.Constraint("Horizontal", 9),
    Sketcher.Constraint("Parallel", 3, 5),
    Sketcher.Constraint("Horizontal", 2, 2, 5, 2),
    Sketcher.Constraint("DistanceX", 4, 1, 4, 2, Q("0.13 in")),
    Sketcher.Constraint("DistanceY", 6, 2, 1, 2, Q("0.13 in")),
    Sketcher.Constraint("DistanceY", 2, 2, 2, 1, Q("0.7303 in")),
    Sketcher.Constraint("DistanceY", -1, 1, 8, 2, Q("0.655 in")),
    Sketcher.Constraint("DistanceX", 9, 1, 9, 2, Q("2.689899 mm")),
    Sketcher.Constraint("DistanceY", 0, 1, 0, 2, Q("26.801981 mm")),
    Sketcher.Constraint("DistanceX", 1, 2, 1, 1, Q("11.811696 mm")),
    Sketcher.Constraint("DistanceX", -1, 1, 0, 2, Q("3.40493 mm")),
    Sketcher.Constraint("DistanceX", 3, 2, 2, 2, Q("7.28612 mm")),
    Sketcher.Constraint("Distance", 3, Q("12.826762 mm")),
])
pad9 = body.newObject("PartDesign::Pad", "Pad008")
pad9.Profile = sketch13
pad9.Length = Q("0.83 in")

sketch14 = body.newObject("Sketcher::SketchObject", "Sketch013")
sketch14.AttachmentSupport = (doc.getObject("YZ_Plane"), [""])
sketch14.MapMode = "FlatFace"
sketch14.AttachmentOffset = App.Placement(V(0, 0, -8.406766), App.Rotation())
sketch14.addGeometry(Part.Circle(V(-34.4, 34.5, 0), V(0, 0, 1), 2.5), False)
sketch14.addConstraint([
    Sketcher.Constraint("Diameter", 0, Q("0.2 in")),
    Sketcher.Constraint("DistanceX", 0, 3, -1, 1, Q("1.355 in")),
    Sketcher.Constraint("DistanceY", -1, 1, 0, 3, Q("34.548981 mm")),
])
pocket5 = body.newObject("PartDesign::Pocket", "Pocket004")
pocket5.Profile = sketch14
pocket5.Length = Q("0.83 in")
pocket5.Reversed = True

sketch15 = body.newObject("Sketcher::SketchObject", "Sketch014")
sketch15.AttachmentSupport = (doc.getObject("XZ_Plane"), [""])
sketch15.MapMode = "FlatFace"
sketch15.AttachmentOffset = App.Placement(V(0, 0, 1.72 * 25.4), App.Rotation())
add_polygon(sketch15, [(10.8, 13.5), (14.1, 12.9), (14.1, 14.1), (10.8, 14.1)])
sketch15.addConstraint([
    Sketcher.Constraint("Vertical", 1),
    Sketcher.Constraint("Horizontal", 2),
    Sketcher.Constraint("DistanceX", -1, 1, 0, 2, Q("0.555 in")),
    Sketcher.Constraint("DistanceY", -1, 1, 1, 2, Q("0.555 in")),
    Sketcher.Constraint("DistanceX", 2, 2, 2, 1, Q("3.317798 mm")),
    Sketcher.Constraint("Distance", 0, Q("3.318709 mm")),
    Sketcher.Constraint("DistanceY", 1, 1, 1, 2, Q("1.199323 mm")),
    Sketcher.Constraint("DistanceX", -1, 1, 3, 2, Q("10.837249 mm")),
])
pocket6 = body.newObject("PartDesign::Pocket", "Pocket005")
pocket6.Profile = sketch15
pocket6.Length = Q("0.83 in")

doc.recompute()
